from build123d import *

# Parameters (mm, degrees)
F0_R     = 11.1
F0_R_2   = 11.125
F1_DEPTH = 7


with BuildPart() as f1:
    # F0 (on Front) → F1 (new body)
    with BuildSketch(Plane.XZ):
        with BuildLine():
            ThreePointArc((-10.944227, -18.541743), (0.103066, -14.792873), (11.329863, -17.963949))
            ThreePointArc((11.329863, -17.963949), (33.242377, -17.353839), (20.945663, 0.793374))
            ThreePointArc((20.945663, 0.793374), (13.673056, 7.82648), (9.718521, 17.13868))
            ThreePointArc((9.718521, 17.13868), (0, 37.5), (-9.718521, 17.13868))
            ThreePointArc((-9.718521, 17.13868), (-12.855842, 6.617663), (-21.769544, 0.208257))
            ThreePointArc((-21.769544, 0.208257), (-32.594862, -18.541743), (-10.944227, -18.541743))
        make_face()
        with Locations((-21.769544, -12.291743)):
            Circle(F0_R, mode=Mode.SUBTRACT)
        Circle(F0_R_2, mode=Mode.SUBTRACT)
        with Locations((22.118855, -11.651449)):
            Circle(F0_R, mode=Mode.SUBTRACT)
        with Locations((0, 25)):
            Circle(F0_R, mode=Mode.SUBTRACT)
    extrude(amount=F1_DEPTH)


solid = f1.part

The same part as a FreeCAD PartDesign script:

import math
import FreeCAD as App
import Part
import Sketcher

V = App.Vector

doc = App.newDocument("Part")
body = doc.addObject("PartDesign::Body", "Body")

sketch1 = body.newObject("Sketcher::SketchObject", "Sketch")
sketch1.AttachmentSupport = (doc.getObject("XZ_Plane"), [""])
sketch1.MapMode = "FlatFace"
sketch1.addGeometry([
    Part.ArcOfCircle(Part.Circle(V(1, -34, 0), V(0, 0, 1), 20), math.radians(57), math.radians(126)),
    Part.ArcOfCircle(Part.Circle(V(22, -12, 0), V(0, 0, 1), 12), math.radians(-150), math.radians(95)),
    Part.ArcOfCircle(Part.Circle(V(35, 22, 0), V(0, 0, 1), 25), math.radians(-168), math.radians(-123)),
    Part.ArcOfCircle(Part.Circle(V(0, 25, 0), V(0, 0, 1), 13), math.radians(-39), math.radians(219)),
    Part.ArcOfCircle(Part.Circle(V(-27, 16, 0), V(0, 0, 1), 17), math.radians(-73), math.radians(2)),
    Part.ArcOfCircle(Part.Circle(V(-22, -12, 0), V(0, 0, 1), 12), math.radians(90), math.radians(330)),
    Part.Circle(V(-22, -12, 0), V(0, 0, 1), 11),
    Part.Circle(V(0, 0, 0), V(0, 0, 1), 11),
    Part.Circle(V(22, -12, 0), V(0, 0, 1), 11),
    Part.Circle(V(0, 25, 0), V(0, 0, 1), 11),
], False)
sketch1.addConstraint([
    Sketcher.Constraint("Coincident", 0, 1, 1, 1),
    Sketcher.Constraint("Coincident", 1, 2, 2, 2),
    Sketcher.Constraint("Coincident", 2, 1, 3, 1),
    Sketcher.Constraint("Coincident", 3, 2, 4, 2),
    Sketcher.Constraint("Coincident", 4, 1, 5, 1),
    Sketcher.Constraint("Coincident", 5, 2, 0, 2),
    Sketcher.Constraint("Coincident", 7, 3, -1, 1),
    Sketcher.Constraint("Coincident", 6, 3, 5, 3),
    Sketcher.Constraint("Coincident", 8, 3, 1, 3),
    Sketcher.Constraint("Coincident", 9, 3, 3, 3),
    Sketcher.Constraint("Equal", 1, 3),
    Sketcher.Constraint("Equal", 3, 5),
    Sketcher.Constraint("Equal", 6, 8),
    Sketcher.Constraint("Equal", 8, 9),
    Sketcher.Constraint("Symmetric", 2, 1, 3, 2, -2),
    Sketcher.Constraint("Vertical", 6, 3, 4, 1),
    Sketcher.Constraint("Radius", 4, 16.999999),
    Sketcher.Constraint("Diameter", 6, 22.2),
    Sketcher.Constraint("Radius", 1, 12.5),
    Sketcher.Constraint("Diameter", 7, 22.25),
    Sketcher.Constraint("DistanceY", -1, 1, 3, 3, 25.0),
    Sketcher.Constraint("DistanceY", 5, 2, 6, 3, 6.25),
    Sketcher.Constraint("Radius", 0, 19.660693),
    Sketcher.Constraint("Radius", 2, 25.427367),
    Sketcher.Constraint("DistanceX", 5, 3, 1, 3, 43.888399),
    Sketcher.Constraint("DistanceY", 0, 1, 1, 3, 6.3125),
    Sketcher.Constraint("DistanceX", 0, 1, 1, 2, 9.6158),
    Sketcher.Constraint("DistanceY", 1, 3, -1, 1, 11.651449),
    Sketcher.Constraint("DistanceX", -1, 1, 2, 3, 34.632409),
    Sketcher.Constraint("DistanceX", -1, 1, 2, 1, 9.718521),
    Sketcher.Constraint("DistanceX", 0, 3, 1, 3, 21.505959),
])
pad1 = body.newObject("PartDesign::Pad", "Pad")
pad1.Profile = sketch1
pad1.Length = 7

doc.recompute()
